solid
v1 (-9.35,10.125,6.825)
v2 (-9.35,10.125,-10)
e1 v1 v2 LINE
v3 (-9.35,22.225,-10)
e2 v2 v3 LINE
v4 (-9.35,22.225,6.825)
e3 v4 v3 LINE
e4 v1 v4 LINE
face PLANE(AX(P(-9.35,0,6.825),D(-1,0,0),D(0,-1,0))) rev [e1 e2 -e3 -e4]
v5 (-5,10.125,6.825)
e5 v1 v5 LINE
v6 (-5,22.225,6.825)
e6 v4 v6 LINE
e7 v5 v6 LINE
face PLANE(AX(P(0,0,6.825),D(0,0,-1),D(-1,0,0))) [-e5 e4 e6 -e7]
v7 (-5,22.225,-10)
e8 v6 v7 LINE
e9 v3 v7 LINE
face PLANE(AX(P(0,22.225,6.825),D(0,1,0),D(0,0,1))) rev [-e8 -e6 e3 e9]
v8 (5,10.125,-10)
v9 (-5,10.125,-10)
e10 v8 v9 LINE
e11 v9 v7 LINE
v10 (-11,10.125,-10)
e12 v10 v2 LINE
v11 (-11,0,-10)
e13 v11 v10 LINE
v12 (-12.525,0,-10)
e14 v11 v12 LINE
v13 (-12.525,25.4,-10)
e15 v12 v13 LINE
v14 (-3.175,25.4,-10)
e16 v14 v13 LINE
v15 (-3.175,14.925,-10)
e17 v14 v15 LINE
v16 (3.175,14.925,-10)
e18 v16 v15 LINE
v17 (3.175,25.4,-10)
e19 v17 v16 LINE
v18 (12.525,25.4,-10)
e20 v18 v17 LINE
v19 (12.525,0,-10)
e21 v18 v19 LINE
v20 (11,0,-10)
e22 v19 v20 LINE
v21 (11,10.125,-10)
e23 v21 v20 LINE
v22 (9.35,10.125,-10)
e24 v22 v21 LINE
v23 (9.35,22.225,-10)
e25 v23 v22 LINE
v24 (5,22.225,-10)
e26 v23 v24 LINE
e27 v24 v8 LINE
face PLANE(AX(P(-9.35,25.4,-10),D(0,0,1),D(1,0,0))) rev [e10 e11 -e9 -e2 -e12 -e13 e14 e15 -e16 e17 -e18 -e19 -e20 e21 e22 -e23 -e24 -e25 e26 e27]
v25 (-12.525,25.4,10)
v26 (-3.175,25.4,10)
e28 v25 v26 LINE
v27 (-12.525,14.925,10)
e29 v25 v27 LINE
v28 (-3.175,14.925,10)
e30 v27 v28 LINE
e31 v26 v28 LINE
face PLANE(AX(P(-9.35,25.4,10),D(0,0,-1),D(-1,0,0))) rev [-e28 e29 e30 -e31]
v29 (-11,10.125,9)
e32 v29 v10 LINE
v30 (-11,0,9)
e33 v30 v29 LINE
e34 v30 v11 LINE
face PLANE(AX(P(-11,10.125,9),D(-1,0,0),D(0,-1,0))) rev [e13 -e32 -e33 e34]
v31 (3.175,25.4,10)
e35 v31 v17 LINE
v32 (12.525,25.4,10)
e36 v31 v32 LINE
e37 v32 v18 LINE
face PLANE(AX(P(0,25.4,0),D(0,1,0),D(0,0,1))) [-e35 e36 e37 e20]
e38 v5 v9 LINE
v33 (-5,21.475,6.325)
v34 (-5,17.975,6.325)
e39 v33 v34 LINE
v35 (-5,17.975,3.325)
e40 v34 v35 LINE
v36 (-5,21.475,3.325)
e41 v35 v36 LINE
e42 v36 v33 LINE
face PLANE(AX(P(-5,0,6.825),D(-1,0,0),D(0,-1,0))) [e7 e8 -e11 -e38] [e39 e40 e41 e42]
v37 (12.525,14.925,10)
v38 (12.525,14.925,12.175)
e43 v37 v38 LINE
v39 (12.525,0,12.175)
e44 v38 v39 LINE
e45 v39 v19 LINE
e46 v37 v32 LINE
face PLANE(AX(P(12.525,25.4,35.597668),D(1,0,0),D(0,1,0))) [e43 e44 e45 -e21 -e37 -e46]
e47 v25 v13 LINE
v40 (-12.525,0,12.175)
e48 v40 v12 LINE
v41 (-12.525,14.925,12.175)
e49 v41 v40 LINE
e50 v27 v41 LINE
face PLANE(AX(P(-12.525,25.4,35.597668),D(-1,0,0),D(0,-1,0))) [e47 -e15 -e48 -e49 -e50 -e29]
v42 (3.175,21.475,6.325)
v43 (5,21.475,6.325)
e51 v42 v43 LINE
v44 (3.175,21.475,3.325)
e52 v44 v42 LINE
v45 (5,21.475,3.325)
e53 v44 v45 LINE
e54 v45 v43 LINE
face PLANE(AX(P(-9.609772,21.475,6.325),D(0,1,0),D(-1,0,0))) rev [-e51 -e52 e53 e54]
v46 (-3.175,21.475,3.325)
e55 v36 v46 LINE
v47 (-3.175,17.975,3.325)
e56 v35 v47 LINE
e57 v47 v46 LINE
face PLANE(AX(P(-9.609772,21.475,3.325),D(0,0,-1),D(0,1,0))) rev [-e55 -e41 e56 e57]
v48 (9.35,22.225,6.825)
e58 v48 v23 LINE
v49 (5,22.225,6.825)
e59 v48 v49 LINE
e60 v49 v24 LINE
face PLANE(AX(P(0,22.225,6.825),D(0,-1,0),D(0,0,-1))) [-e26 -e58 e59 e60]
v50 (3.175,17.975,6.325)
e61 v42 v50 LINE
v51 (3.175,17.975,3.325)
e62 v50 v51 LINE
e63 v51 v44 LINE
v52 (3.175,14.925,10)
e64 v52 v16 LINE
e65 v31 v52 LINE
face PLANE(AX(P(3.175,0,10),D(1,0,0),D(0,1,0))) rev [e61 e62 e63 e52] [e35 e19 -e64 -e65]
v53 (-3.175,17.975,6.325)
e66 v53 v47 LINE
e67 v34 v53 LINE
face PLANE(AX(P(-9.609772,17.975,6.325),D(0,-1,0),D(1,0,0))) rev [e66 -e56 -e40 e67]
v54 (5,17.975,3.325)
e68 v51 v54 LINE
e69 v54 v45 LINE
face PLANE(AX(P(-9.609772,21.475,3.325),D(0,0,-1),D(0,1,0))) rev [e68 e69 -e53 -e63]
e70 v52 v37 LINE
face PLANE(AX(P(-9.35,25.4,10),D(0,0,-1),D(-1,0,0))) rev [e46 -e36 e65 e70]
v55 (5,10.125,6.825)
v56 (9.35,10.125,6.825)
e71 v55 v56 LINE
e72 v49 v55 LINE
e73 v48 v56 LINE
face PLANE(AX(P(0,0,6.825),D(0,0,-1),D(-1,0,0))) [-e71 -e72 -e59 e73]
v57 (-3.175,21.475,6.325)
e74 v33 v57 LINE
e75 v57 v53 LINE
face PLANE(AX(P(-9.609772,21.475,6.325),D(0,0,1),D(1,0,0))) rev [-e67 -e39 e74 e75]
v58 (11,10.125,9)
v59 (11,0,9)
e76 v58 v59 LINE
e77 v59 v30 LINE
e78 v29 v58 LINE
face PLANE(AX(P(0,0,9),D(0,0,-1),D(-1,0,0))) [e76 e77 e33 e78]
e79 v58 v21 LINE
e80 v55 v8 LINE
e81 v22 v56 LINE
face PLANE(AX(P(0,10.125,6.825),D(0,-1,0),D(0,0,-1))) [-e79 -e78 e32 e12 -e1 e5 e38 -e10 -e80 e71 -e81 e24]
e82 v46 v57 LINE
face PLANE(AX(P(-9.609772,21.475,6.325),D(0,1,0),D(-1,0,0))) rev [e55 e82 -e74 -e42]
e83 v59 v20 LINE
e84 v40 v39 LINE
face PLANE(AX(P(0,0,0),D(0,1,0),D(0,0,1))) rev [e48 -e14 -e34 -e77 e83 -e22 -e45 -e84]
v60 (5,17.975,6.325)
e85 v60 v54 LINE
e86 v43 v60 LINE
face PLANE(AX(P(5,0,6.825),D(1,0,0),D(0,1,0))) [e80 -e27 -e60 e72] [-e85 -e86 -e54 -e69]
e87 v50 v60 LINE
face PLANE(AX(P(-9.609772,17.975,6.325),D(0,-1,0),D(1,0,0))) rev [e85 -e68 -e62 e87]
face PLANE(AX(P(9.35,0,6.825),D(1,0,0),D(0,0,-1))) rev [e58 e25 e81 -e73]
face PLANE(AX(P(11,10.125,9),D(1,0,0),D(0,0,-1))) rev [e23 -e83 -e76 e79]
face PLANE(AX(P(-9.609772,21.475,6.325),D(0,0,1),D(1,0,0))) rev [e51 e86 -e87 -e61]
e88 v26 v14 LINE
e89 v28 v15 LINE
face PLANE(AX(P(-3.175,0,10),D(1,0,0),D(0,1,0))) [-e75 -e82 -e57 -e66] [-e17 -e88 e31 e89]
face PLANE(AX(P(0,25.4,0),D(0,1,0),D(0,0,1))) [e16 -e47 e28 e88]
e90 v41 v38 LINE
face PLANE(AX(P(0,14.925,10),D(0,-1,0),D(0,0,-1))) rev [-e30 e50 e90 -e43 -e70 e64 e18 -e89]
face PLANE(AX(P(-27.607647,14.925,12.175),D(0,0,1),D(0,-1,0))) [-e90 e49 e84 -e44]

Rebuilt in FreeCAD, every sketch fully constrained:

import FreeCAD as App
import Part
import Sketcher
from FreeCAD import Vector

doc = App.newDocument("Part")
body = doc.addObject("PartDesign::Body", "Body")

# Sketch on XZ plane
sketch1 = body.newObject("Sketcher::SketchObject", "Sketch")
sketch1.AttachmentSupport = (doc.getObject("XZ_Plane"), [""])
sketch1.MapMode = "FlatFace"
sketch1.addGeometry([
    Part.LineSegment(Vector(-9.35, -10, 0), Vector(-9.35, 10, 0)),
    Part.LineSegment(Vector(-9.35, 10, 0), Vector(9.35, 10, 0)),
    Part.LineSegment(Vector(9.35, 10, 0), Vector(9.35, -10, 0)),
    Part.LineSegment(Vector(9.35, -10, 0), Vector(-9.35, -10, 0)),
], False)
sketch1.addConstraint([
    Sketcher.Constraint("Coincident", 0, 2, 1, 1),
    Sketcher.Constraint("Coincident", 1, 2, 2, 1),
    Sketcher.Constraint("Coincident", 2, 2, 3, 1),
    Sketcher.Constraint("Coincident", 3, 2, 0, 1),
    Sketcher.Constraint("Vertical", 0),
    Sketcher.Constraint("Horizontal", 1),
    Sketcher.Constraint("Vertical", 2),
    Sketcher.Constraint("Horizontal", 3),
    Sketcher.Constraint("Symmetric", 0, 2, 2, 2, -1, 1),
    Sketcher.Constraint("DistanceY", 0, 1, 0, 2, 20.0),
    Sketcher.Constraint("DistanceX", 1, 1, 1, 2, 18.7),
])
pad1 = body.newObject("PartDesign::Pad", "Pad")
pad1.Profile = sketch1
pad1.Length = 25.4
pad1.Reversed = True

# Sketch on XY plane
sketch2 = body.newObject("Sketcher::SketchObject", "Sketch001")
sketch2.AttachmentSupport = (doc.getObject("XY_Plane"), [""])
sketch2.MapMode = "FlatFace"
sketch2.AttachmentOffset = App.Placement(Vector(0, 0, -10), App.Rotation())
sketch2.addGeometry([
    Part.LineSegment(Vector(3.175, 25.4, 0), Vector(3.175, 14.925, 0)),
    Part.LineSegment(Vector(3.175, 14.925, 0), Vector(-3.175, 14.925, 0)),
    Part.LineSegment(Vector(-3.175, 14.925, 0), Vector(-3.175, 25.4, 0)),
    Part.LineSegment(Vector(-3.175, 25.4, 0), Vector(3.175, 25.4, 0)),
], False)
sketch2.addConstraint([
    Sketcher.Constraint("Coincident", 0, 2, 1, 1),
    Sketcher.Constraint("Coincident", 1, 2, 2, 1),
    Sketcher.Constraint("Coincident", 2, 2, 3, 1),
    Sketcher.Constraint("Coincident", 3, 2, 0, 1),
    Sketcher.Constraint("Vertical", 0),
    Sketcher.Constraint("Horizontal", 1),
    Sketcher.Constraint("Vertical", 2),
    Sketcher.Constraint("Horizontal", 3),
    Sketcher.Constraint("DistanceX", 1, 2, 1, 1, 6.35),
    Sketcher.Constraint("DistanceY", -1, 1, 2, 2, 25.4),
    Sketcher.Constraint("DistanceY", 0, 2, 0, 1, 10.475),
    Sketcher.Constraint("DistanceX", -1, 1, 0, 2, 3.175),
])
pocket1 = body.newObject("PartDesign::Pocket", "Pocket")
pocket1.Profile = sketch2
pocket1.Type = "ThroughAll"
pocket1.Reversed = True

# Sketch on XY plane
sketch3 = body.newObject("Sketcher::SketchObject", "Sketch002")
sketch3.AttachmentSupport = (doc.getObject("XY_Plane"), [""])
sketch3.MapMode = "FlatFace"
sketch3.AttachmentOffset = App.Placement(Vector(0, 0, -10), App.Rotation())
sketch3.addGeometry([
    Part.LineSegment(Vector(12.525, 25.4, 0), Vector(12.525, 0, 0)),  # 0
    Part.LineSegment(Vector(12.525, 0, 0), Vector(9.35, 0, 0)),  # 1
    Part.LineSegment(Vector(9.35, 0, 0), Vector(9.35, 25.4, 0)),  # 2
    Part.LineSegment(Vector(9.35, 25.4, 0), Vector(12.525, 25.4, 0)),  # 3
    Part.LineSegment(Vector(-9.35, 25.4, 0), Vector(-9.35, 0, 0)),  # 4
    Part.LineSegment(Vector(-9.35, 0, 0), Vector(-12.525, 0, 0)),  # 5
    Part.LineSegment(Vector(-12.525, 0, 0), Vector(-12.525, 25.4, 0)),  # 6
    Part.LineSegment(Vector(-12.525, 25.4, 0), Vector(-9.35, 25.4, 0)),  # 7
], False)
sketch3.addConstraint([
    Sketcher.Constraint("Coincident", 0, 2, 1, 1),
    Sketcher.Constraint("Coincident", 1, 2, 2, 1),
    Sketcher.Constraint("Coincident", 2, 2, 3, 1),
    Sketcher.Constraint("Coincident", 3, 2, 0, 1),
    Sketcher.Constraint("Coincident", 4, 2, 5, 1),
    Sketcher.Constraint("Coincident", 5, 2, 6, 1),
    Sketcher.Constraint("Coincident", 6, 2, 7, 1),
    Sketcher.Constraint("Coincident", 7, 2, 4, 1),
    Sketcher.Constraint("Vertical", 0),
    Sketcher.Constraint("Horizontal", 1),
    Sketcher.Constraint("Vertical", 2),
    Sketcher.Constraint("Horizontal", 3),
    Sketcher.Constraint("Vertical", 4),
    Sketcher.Constraint("Horizontal", 5),
    Sketcher.Constraint("Vertical", 6),
    Sketcher.Constraint("Horizontal", 7),
    Sketcher.Constraint("Symmetric", 1, 2, 4, 2, -1, 1),
    Sketcher.Constraint("Symmetric", 0, 2, 5, 2, -2),
    Sketcher.Constraint("Horizontal", 3, 2, 6, 2),
    Sketcher.Constraint("DistanceY", 0, 2, 0, 1, 25.4),
    Sketcher.Constraint("DistanceX", 4, 2, 1, 2, 18.7),
    Sketcher.Constraint("DistanceX", 1, 2, 1, 1, 3.175),
])
pad2 = body.newObject("PartDesign::Pad", "Pad001")
pad2.Profile = sketch3
pad2.Length = 20

# Sketch on XY plane
sketch4 = body.newObject("Sketcher::SketchObject", "Sketch003")
sketch4.AttachmentSupport = (doc.getObject("XY_Plane"), [""])
sketch4.MapMode = "FlatFace"
sketch4.AttachmentOffset = App.Placement(Vector(0, 0, -10), App.Rotation())
sketch4.addGeometry([
    Part.LineSegment(Vector(-5, 22.225, 0), Vector(-5, 10.125, 0)),  # 0
    Part.LineSegment(Vector(-5, 10.125, 0), Vector(5, 10.125, 0)),  # 1
    Part.LineSegment(Vector(5, 10.125, 0), Vector(5, 22.225, 0)),  # 2
    Part.LineSegment(Vector(5, 22.225, 0), Vector(9.35, 22.225, 0)),  # 3
    Part.LineSegment(Vector(9.35, 22.225, 0), Vector(9.35, 0, 0)),  # 4
    Part.LineSegment(Vector(9.35, 0, 0), Vector(-9.35, 0, 0)),  # 5
    Part.LineSegment(Vector(-9.35, 0, 0), Vector(-9.35, 22.225, 0)),  # 6
    Part.LineSegment(Vector(-9.35, 22.225, 0), Vector(-5, 22.225, 0)),  # 7
], False)
sketch4.addConstraint([
    Sketcher.Constraint("Coincident", 0, 2, 1, 1),
    Sketcher.Constraint("Coincident", 1, 2, 2, 1),
    Sketcher.Constraint("Coincident", 2, 2, 3, 1),
    Sketcher.Constraint("Coincident", 3, 2, 4, 1),
    Sketcher.Constraint("Coincident", 4, 2, 5, 1),
    Sketcher.Constraint("Coincident", 5, 2, 6, 1),
    Sketcher.Constraint("Coincident", 6, 2, 7, 1),
    Sketcher.Constraint("Coincident", 7, 2, 0, 1),
    Sketcher.Constraint("Vertical", 0),
    Sketcher.Constraint("Horizontal", 1),
    Sketcher.Constraint("Vertical", 2),
    Sketcher.Constraint("Horizontal", 3),
    Sketcher.Constraint("Vertical", 4),
    Sketcher.Constraint("Horizontal", 5),
    Sketcher.Constraint("Vertical", 6),
    Sketcher.Constraint("Horizontal", 7),
    Sketcher.Constraint("Symmetric", 4, 2, 5, 2, -1, 1),
    Sketcher.Constraint("Symmetric", 2, 2, 7, 2, -2),
    Sketcher.Constraint("DistanceX", 1, 1, 1, 2, 10.0),
    Sketcher.Constraint("DistanceX", 5, 2, 5, 1, 18.7),
    Sketcher.Constraint("DistanceY", 0, 2, 0, 1, 12.1),
    Sketcher.Constraint("DistanceY", 4, 2, 4, 1, 22.225),
])
pocket2 = body.newObject("PartDesign::Pocket", "Pocket001")
pocket2.Profile = sketch4
pocket2.Length = 16.825
pocket2.Reversed = True

# Sketch on YZ plane
sketch5 = body.newObject("Sketcher::SketchObject", "Sketch004")
sketch5.AttachmentSupport = (doc.getObject("YZ_Plane"), [""])
sketch5.MapMode = "FlatFace"
sketch5.AttachmentOffset = App.Placement(Vector(0, 0, 5), App.Rotation())
sketch5.addGeometry([
    Part.LineSegment(Vector(21.475, 6.325, 0), Vector(17.975, 6.325, 0)),
    Part.LineSegment(Vector(17.975, 6.325, 0), Vector(17.975, 3.325, 0)),
    Part.LineSegment(Vector(17.975, 3.325, 0), Vector(21.475, 3.325, 0)),
    Part.LineSegment(Vector(21.475, 3.325, 0), Vector(21.475, 6.325, 0)),
], False)
sketch5.addConstraint([
    Sketcher.Constraint("Coincident", 0, 2, 1, 1),
    Sketcher.Constraint("Coincident", 1, 2, 2, 1),
    Sketcher.Constraint("Coincident", 2, 2, 3, 1),
    Sketcher.Constraint("Coincident", 3, 2, 0, 1),
    Sketcher.Constraint("Horizontal", 0),
    Sketcher.Constraint("Vertical", 1),
    Sketcher.Constraint("Horizontal", 2),
    Sketcher.Constraint("Vertical", 3),
    Sketcher.Constraint("DistanceY", 1, 2, 1, 1, 3.0),
    Sketcher.Constraint("DistanceX", 0, 2, 0, 1, 3.5),
    Sketcher.Constraint("DistanceX", -1, 1, 0, 2, 17.975),
    Sketcher.Constraint("DistanceY", -1, 1, 0, 2, 6.325),
])
pocket3 = body.newObject("PartDesign::Pocket", "Pocket002")
pocket3.Profile = sketch5
pocket3.Length = 10

# Sketch on XY plane
sketch6 = body.newObject("Sketcher::SketchObject", "Sketch005")
sketch6.AttachmentSupport = (doc.getObject("XY_Plane"), [""])
sketch6.MapMode = "FlatFace"
sketch6.AttachmentOffset = App.Placement(Vector(0, 0, -10), App.Rotation())
sketch6.addGeometry([
    Part.LineSegment(Vector(11, 10.125, 0), Vector(11, 0, 0)),
    Part.LineSegment(Vector(11, 0, 0), Vector(-11, 0, 0)),
    Part.LineSegment(Vector(-11, 0, 0), Vector(-11, 10.125, 0)),
    Part.LineSegment(Vector(-11, 10.125, 0), Vector(11, 10.125, 0)),
], False)
sketch6.addConstraint([
    Sketcher.Constraint("Coincident", 0, 2, 1, 1),
    Sketcher.Constraint("Coincident", 1, 2, 2, 1),
    Sketcher.Constraint("Coincident", 2, 2, 3, 1),
    Sketcher.Constraint("Coincident", 3, 2, 0, 1),
    Sketcher.Constraint("Vertical", 0),
    Sketcher.Constraint("Horizontal", 1),
    Sketcher.Constraint("Vertical", 2),
    Sketcher.Constraint("Horizontal", 3),
    Sketcher.Constraint("Symmetric", 0, 2, 1, 2, -1, 1),
    Sketcher.Constraint("DistanceX", 1, 2, 1, 1, 22.0),
    Sketcher.Constraint("DistanceY", 0, 2, 0, 1, 10.125),
])
pocket4 = body.newObject("PartDesign::Pocket", "Pocket003")
pocket4.Profile = sketch6
pocket4.Length = 19
pocket4.Reversed = True

# Sketch on YZ plane
sketch7 = body.newObject("Sketcher::SketchObject", "Sketch006")
sketch7.AttachmentSupport = (doc.getObject("YZ_Plane"), [""])
sketch7.MapMode = "FlatFace"
sketch7.AttachmentOffset = App.Placement(Vector(0, 0, 12.525), App.Rotation())
sketch7.addGeometry([
    Part.LineSegment(Vector(14.925, 12.175, 0), Vector(0, 12.175, 0)),
    Part.LineSegment(Vector(0, 12.175, 0), Vector(0, 10, 0)),
    Part.LineSegment(Vector(0, 10, 0), Vector(14.925, 10, 0)),
    Part.LineSegment(Vector(14.925, 10, 0), Vector(14.925, 12.175, 0)),
], False)
sketch7.addConstraint([
    Sketcher.Constraint("Coincident", 0, 2, 1, 1),
    Sketcher.Constraint("Coincident", 1, 2, 2, 1),
    Sketcher.Constraint("Coincident", 2, 2, 3, 1),
    Sketcher.Constraint("Coincident", 3, 2, 0, 1),
    Sketcher.Constraint("Horizontal", 0),
    Sketcher.Constraint("Vertical", 1),
    Sketcher.Constraint("Horizontal", 2),
    Sketcher.Constraint("Vertical", 3),
    Sketcher.Constraint("PointOnObject", 0, 2, -2),
    Sketcher.Constraint("DistanceY", -1, 1, 1, 2, 10.0),
    Sketcher.Constraint("DistanceX", 0, 2, 0, 1, 14.925),
    Sketcher.Constraint("DistanceY", 1, 2, 1, 1, 2.175),
])
pad3 = body.newObject("PartDesign::Pad", "Pad002")
pad3.Profile = sketch7
pad3.Length = 25.05
pad3.Reversed = True

doc.recompute()
